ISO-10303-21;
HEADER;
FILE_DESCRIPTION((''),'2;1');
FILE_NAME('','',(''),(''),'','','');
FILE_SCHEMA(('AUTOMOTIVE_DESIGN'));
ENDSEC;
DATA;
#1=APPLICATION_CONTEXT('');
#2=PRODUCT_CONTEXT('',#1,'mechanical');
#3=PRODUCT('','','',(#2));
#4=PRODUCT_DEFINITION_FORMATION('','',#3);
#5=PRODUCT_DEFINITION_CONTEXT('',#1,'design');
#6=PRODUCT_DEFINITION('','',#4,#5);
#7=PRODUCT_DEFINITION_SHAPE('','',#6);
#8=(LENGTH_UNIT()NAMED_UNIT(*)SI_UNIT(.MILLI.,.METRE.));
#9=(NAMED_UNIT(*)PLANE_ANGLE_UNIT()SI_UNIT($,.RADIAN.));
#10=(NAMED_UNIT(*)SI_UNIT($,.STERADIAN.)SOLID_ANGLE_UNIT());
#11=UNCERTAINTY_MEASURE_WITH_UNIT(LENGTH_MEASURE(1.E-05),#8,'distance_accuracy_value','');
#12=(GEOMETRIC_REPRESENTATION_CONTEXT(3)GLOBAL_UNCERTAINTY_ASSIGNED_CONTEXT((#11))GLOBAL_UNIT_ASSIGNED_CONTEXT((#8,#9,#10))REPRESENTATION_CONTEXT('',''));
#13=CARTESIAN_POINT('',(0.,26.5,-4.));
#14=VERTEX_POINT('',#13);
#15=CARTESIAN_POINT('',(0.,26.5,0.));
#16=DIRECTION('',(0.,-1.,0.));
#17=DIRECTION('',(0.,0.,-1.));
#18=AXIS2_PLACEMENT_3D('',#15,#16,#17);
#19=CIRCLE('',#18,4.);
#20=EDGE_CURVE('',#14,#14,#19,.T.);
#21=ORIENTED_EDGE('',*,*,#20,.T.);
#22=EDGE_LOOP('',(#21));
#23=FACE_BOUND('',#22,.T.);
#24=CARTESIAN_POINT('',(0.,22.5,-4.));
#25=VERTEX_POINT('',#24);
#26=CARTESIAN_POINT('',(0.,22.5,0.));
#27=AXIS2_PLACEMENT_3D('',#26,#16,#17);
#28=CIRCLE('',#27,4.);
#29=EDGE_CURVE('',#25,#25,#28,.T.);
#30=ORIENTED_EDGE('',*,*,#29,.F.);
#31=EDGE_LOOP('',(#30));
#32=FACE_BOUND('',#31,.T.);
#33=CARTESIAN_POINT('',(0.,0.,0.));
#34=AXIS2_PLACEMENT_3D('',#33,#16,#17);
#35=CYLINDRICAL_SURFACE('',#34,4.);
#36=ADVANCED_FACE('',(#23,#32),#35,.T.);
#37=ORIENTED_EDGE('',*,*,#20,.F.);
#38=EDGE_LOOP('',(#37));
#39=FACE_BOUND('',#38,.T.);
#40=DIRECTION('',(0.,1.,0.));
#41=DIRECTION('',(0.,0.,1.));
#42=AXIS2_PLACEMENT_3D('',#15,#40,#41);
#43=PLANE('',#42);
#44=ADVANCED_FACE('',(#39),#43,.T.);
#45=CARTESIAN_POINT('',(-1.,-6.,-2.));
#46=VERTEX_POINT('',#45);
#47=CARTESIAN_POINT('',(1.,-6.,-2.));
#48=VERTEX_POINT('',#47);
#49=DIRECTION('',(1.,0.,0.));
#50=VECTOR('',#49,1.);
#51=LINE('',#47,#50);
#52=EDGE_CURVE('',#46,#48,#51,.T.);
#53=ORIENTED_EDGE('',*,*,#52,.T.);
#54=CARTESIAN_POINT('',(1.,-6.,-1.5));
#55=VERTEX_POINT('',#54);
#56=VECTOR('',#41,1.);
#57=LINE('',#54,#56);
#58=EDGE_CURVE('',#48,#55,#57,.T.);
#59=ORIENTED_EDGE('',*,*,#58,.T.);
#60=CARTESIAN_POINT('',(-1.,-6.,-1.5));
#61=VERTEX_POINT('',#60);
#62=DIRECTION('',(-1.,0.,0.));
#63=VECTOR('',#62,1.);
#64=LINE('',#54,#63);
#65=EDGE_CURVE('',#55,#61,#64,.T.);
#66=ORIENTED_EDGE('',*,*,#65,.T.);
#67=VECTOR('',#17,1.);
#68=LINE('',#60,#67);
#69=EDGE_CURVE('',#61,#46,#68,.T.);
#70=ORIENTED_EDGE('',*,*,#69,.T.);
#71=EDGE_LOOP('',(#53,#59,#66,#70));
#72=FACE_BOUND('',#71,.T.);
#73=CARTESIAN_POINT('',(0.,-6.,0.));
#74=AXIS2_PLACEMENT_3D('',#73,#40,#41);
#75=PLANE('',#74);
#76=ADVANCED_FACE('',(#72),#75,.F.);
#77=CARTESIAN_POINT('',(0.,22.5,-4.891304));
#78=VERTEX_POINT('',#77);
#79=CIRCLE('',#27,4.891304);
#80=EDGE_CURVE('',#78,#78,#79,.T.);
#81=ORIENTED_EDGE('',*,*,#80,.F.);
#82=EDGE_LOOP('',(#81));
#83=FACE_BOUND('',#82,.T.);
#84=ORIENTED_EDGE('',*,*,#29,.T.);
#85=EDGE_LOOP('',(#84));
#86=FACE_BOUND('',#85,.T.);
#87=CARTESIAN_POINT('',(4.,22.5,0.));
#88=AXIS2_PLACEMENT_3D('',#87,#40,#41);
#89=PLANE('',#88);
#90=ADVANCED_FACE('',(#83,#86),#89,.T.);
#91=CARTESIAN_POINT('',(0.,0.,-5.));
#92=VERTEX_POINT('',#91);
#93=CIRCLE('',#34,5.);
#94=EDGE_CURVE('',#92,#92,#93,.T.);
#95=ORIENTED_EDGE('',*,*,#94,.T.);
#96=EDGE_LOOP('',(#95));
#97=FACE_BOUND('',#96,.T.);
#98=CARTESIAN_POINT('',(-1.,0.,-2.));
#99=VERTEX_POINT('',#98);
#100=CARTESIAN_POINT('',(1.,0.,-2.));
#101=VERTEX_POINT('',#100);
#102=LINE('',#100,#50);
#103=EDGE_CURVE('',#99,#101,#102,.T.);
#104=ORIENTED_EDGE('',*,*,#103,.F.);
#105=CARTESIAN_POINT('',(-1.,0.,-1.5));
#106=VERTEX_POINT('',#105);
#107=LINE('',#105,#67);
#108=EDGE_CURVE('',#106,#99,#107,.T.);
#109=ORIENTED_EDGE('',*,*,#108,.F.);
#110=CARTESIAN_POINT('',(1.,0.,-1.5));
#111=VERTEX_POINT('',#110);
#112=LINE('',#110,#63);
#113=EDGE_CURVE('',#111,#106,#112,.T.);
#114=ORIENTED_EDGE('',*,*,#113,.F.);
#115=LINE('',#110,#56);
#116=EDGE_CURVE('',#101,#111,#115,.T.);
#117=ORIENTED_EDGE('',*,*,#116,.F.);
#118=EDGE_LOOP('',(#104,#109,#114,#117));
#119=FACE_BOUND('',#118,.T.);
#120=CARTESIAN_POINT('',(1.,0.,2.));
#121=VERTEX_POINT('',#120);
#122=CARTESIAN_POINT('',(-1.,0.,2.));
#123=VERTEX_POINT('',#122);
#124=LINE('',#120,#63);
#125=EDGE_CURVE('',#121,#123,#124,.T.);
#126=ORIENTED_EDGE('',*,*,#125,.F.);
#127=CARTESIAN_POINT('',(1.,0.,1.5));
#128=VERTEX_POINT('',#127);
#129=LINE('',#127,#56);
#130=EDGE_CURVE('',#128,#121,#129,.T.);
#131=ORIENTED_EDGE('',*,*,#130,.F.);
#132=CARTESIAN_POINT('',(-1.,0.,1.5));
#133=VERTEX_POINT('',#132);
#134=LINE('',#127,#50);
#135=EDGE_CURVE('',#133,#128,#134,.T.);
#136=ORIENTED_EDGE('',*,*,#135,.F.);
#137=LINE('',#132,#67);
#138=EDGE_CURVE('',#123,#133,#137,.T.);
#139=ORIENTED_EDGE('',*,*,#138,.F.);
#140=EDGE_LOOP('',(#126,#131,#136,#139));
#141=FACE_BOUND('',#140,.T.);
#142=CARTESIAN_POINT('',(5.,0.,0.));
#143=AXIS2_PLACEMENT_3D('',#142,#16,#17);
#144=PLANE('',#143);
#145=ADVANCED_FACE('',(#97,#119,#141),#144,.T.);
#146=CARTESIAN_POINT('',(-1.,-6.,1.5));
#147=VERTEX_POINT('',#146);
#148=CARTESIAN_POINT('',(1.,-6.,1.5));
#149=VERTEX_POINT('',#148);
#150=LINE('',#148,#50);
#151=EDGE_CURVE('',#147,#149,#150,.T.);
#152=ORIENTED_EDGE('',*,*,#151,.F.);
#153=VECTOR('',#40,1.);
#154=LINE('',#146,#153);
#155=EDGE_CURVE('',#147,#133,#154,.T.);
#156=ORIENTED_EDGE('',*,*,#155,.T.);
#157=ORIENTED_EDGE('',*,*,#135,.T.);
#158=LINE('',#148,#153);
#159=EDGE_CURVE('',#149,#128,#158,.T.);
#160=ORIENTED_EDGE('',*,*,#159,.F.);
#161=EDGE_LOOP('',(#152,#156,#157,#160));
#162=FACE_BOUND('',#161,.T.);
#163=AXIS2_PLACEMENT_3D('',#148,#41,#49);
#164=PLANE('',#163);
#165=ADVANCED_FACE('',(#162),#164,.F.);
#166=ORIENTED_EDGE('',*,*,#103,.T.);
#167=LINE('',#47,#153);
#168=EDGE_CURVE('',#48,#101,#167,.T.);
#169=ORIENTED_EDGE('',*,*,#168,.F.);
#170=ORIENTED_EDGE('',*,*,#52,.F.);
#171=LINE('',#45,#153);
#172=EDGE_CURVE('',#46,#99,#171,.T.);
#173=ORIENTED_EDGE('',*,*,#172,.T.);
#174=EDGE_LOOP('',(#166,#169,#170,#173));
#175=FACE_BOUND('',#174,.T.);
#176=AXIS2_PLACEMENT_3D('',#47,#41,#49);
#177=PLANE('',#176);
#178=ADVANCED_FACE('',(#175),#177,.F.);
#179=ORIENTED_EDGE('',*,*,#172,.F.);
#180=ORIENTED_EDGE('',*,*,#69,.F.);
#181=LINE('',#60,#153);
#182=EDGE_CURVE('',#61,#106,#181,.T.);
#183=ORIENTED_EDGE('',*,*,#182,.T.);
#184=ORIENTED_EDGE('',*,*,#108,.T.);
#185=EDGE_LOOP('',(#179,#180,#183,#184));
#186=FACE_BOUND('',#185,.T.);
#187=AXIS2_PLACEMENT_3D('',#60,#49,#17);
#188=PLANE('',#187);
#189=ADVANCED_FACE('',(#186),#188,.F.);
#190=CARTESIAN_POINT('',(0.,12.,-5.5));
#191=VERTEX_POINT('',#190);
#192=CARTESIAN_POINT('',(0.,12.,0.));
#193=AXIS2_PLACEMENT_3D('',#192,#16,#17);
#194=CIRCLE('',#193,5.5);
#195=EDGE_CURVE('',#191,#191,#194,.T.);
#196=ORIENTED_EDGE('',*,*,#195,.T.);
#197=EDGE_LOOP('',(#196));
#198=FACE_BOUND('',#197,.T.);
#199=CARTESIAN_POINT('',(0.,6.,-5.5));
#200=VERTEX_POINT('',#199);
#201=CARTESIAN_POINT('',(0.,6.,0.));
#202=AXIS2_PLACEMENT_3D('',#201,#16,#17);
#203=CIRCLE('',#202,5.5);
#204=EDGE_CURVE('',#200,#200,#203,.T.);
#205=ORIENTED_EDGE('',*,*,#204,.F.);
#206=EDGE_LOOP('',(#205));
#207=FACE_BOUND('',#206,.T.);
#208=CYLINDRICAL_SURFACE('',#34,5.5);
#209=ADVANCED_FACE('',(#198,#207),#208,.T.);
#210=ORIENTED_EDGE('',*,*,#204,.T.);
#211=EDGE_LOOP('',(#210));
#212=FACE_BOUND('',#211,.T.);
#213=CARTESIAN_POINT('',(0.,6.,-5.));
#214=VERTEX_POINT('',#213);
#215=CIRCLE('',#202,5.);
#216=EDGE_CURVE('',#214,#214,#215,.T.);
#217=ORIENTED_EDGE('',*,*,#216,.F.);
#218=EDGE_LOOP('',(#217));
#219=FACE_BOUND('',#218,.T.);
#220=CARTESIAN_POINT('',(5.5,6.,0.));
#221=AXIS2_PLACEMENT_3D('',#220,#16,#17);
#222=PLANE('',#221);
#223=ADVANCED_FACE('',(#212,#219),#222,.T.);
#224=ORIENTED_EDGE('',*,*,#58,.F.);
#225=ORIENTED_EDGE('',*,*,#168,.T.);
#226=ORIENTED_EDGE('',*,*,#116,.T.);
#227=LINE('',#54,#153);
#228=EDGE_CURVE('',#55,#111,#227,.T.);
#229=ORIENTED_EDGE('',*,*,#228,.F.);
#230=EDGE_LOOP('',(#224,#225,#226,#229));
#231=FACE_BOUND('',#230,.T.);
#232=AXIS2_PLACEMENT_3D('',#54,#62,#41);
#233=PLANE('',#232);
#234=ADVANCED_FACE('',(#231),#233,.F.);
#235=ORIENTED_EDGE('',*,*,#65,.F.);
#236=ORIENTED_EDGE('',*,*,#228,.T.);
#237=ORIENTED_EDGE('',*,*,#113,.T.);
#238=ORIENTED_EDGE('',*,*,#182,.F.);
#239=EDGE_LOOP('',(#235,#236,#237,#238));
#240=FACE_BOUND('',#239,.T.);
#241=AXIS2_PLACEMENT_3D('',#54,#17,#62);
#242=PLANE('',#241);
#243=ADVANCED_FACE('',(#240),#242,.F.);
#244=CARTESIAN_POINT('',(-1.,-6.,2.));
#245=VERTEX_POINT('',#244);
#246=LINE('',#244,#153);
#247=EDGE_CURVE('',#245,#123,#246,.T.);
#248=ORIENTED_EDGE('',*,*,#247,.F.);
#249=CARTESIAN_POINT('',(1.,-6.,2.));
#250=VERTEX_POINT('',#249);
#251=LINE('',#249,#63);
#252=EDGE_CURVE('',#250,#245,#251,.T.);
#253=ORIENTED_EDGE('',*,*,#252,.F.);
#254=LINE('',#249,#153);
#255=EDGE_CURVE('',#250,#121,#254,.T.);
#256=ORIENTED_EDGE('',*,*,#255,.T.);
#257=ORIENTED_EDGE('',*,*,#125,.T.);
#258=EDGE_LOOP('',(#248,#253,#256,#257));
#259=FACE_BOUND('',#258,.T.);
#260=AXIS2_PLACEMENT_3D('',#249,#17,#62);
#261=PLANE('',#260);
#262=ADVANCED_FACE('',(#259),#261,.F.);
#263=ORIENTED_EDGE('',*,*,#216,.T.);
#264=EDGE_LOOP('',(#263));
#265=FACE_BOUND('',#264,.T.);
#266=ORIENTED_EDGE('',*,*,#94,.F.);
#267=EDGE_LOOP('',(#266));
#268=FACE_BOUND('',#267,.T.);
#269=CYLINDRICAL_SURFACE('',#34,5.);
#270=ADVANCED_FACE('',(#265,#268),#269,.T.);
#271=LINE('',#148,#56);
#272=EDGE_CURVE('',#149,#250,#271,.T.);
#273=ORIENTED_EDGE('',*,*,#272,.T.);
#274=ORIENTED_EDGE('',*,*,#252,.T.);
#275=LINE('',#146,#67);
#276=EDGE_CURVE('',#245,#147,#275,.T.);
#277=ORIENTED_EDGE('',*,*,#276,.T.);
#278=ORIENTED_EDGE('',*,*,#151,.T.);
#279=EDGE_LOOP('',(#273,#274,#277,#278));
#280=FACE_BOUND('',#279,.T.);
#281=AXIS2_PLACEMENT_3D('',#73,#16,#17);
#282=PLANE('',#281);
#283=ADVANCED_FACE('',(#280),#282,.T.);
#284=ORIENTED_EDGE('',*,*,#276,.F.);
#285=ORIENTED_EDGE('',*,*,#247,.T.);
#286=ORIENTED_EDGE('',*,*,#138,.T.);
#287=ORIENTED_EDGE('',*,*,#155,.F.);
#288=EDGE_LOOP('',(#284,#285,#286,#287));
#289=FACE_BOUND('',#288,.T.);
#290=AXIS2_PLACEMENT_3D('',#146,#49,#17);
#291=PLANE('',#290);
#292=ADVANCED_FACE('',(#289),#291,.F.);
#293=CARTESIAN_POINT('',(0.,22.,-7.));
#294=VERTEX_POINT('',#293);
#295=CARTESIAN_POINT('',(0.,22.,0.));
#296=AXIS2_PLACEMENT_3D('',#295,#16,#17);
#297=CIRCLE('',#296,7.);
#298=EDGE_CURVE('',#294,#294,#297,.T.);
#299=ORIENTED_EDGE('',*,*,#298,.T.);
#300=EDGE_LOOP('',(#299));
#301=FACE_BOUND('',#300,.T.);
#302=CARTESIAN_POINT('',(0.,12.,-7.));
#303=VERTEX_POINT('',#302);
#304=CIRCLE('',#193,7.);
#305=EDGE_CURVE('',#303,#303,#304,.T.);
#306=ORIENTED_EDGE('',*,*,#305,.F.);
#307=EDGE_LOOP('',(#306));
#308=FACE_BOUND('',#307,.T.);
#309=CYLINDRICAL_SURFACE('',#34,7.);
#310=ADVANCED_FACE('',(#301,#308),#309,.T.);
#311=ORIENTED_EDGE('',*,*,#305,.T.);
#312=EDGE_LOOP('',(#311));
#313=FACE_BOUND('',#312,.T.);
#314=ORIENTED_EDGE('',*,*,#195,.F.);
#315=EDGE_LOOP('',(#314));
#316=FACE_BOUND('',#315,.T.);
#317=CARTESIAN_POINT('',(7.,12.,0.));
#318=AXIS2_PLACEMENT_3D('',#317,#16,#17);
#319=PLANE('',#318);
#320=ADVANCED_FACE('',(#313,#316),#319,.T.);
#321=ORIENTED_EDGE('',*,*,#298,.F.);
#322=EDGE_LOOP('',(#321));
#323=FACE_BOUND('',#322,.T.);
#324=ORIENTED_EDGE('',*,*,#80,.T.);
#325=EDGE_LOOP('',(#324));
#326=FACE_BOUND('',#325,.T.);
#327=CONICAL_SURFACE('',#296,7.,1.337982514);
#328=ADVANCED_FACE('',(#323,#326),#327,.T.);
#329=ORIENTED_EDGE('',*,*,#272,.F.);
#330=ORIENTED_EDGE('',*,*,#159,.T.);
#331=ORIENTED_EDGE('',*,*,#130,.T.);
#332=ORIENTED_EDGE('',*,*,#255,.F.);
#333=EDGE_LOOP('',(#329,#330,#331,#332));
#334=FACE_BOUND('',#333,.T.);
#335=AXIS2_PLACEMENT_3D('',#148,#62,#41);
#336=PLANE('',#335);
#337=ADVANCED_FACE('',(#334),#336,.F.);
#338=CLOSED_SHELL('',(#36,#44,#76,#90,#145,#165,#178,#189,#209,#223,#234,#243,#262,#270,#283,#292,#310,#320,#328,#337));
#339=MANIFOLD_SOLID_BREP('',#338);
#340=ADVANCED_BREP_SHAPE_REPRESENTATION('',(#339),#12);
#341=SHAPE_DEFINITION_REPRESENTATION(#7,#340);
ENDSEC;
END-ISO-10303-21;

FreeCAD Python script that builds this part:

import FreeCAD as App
import Part
import Sketcher

V = App.Vector
Q = App.Units.Quantity

doc = App.newDocument("Part")
params = doc.addObject("Spreadsheet::Sheet", "Params")
for row, (alias, value) in enumerate([
    ("sketch1_width", "4 mm"),
    ("sketch1_width2", "5 mm"),
    ("sketch1_height", "6 mm"),
    ("sketch1_height2", "10 mm"),
    ("sketch1_width3", "0.5 mm"),
    ("revolution_angle", "360 deg"),
    ("sketch2_width", "2 mm"),
    ("sketch2_height", "0.5 mm"),
    ("pad1_length", "6 mm"),
], start=1):
    params.set(f"A{row}", alias)
    params.set(f"B{row}", "=" + value)
    params.setAlias(f"B{row}", alias)

body = doc.addObject("PartDesign::Body", "Body")

sketch1 = body.newObject("Sketcher::SketchObject", "Sketch")
sketch1.AttachmentSupport = (doc.getObject("XY_Plane"), [""])
sketch1.MapMode = "FlatFace"
sketch1.addGeometry([
    Part.LineSegment(V(4, 26.5, 0), V(0, 26.5, 0)),
    Part.LineSegment(V(0, 26.5, 0), V(0, 0, 0)),
    Part.LineSegment(V(0, 0, 0), V(5, 0, 0)),
    Part.LineSegment(V(5, 0, 0), V(5, 6, 0)),
    Part.LineSegment(V(5, 6, 0), V(5.5, 6, 0)),
    Part.LineSegment(V(5.5, 6, 0), V(5.5, 12, 0)),
    Part.LineSegment(V(5.5, 12, 0), V(7, 12, 0)),
    Part.LineSegment(V(7, 12, 0), V(7, 22, 0)),
    Part.LineSegment(V(7, 22, 0), V(4.891304, 22.5, 0)),
    Part.LineSegment(V(4.891304, 22.5, 0), V(4, 22.5, 0)),
    Part.LineSegment(V(4, 22.5, 0), V(4, 26.5, 0)),
], False)
sketch1.addConstraint([
    Sketcher.Constraint("Coincident", 0, 2, 1, 1),
    Sketcher.Constraint("Coincident", 1, 2, 2, 1),
    Sketcher.Constraint("Coincident", 2, 2, 3, 1),
    Sketcher.Constraint("Coincident", 3, 2, 4, 1),
    Sketcher.Constraint("Coincident", 4, 2, 5, 1),
    Sketcher.Constraint("Coincident", 5, 2, 6, 1),
    Sketcher.Constraint("Coincident", 6, 2, 7, 1),
    Sketcher.Constraint("Coincident", 7, 2, 8, 1),
    Sketcher.Constraint("Coincident", 8, 2, 9, 1),
    Sketcher.Constraint("Coincident", 9, 2, 10, 1),
    Sketcher.Constraint("Coincident", 10, 2, 0, 1),
    Sketcher.Constraint("Horizontal", 0),
    Sketcher.Constraint("Vertical", 1),
    Sketcher.Constraint("Horizontal", 2),
    Sketcher.Constraint("Vertical", 3),
    Sketcher.Constraint("Horizontal", 4),
    Sketcher.Constraint("Vertical", 5),
    Sketcher.Constraint("Horizontal", 6),
    Sketcher.Constraint("Vertical", 7),
    Sketcher.Constraint("Horizontal", 9),
    Sketcher.Constraint("Vertical", 10),
    Sketcher.Constraint("Coincident", 1, 2, -1, 1),
    Sketcher.Constraint("Equal", 3, 5),
    Sketcher.Constraint("Equal", 0, 10),
    Sketcher.Constraint("DistanceX", 0, 2, 0, 1, Q("4 mm")),
    Sketcher.Constraint("DistanceX", 2, 1, 2, 2, Q("5 mm")),
    Sketcher.Constraint("DistanceY", 3, 1, 3, 2, Q("6 mm")),
    Sketcher.Constraint("DistanceY", 7, 1, 7, 2, Q("10 mm")),
    Sketcher.Constraint("DistanceX", 4, 1, 4, 2, Q("0.5 mm")),
    Sketcher.Constraint("DistanceX", 6, 1, 6, 2, Q("1.5 mm")),
    Sketcher.Constraint("DistanceY", 1, 2, 1, 1, Q("26.5 mm")),
    Sketcher.Constraint("DistanceX", 9, 2, 9, 1, Q("0.891304 mm")),
])
sketch1.setExpression("Constraints[24]", "Params.sketch1_width")
sketch1.setExpression("Constraints[25]", "Params.sketch1_width2")
sketch1.setExpression("Constraints[26]", "Params.sketch1_height")
sketch1.setExpression("Constraints[27]", "Params.sketch1_height2")
sketch1.setExpression("Constraints[28]", "Params.sketch1_width3")
revolution = body.newObject("PartDesign::Revolution", "Revolution")
revolution.Profile = sketch1
revolution.ReferenceAxis = (sketch1, ["V_Axis"])
revolution.setExpression("Angle", "Params.revolution_angle")

sketch2 = body.newObject("Sketcher::SketchObject", "Sketch001")
sketch2.AttachmentSupport = (doc.getObject("XZ_Plane"), [""])
sketch2.MapMode = "FlatFace"
sketch2.addGeometry([
    Part.LineSegment(V(-1, -1.5, 0), V(-1, -2, 0)),
    Part.LineSegment(V(-1, -2, 0), V(1, -2, 0)),
    Part.LineSegment(V(1, -2, 0), V(1, -1.5, 0)),
    Part.LineSegment(V(1, -1.5, 0), V(-1, -1.5, 0)),
    Part.LineSegment(V(-1, 2, 0), V(-1, 1.5, 0)),
    Part.LineSegment(V(-1, 1.5, 0), V(1, 1.5, 0)),
    Part.LineSegment(V(1, 1.5, 0), V(1, 2, 0)),
    Part.LineSegment(V(1, 2, 0), V(-1, 2, 0)),
], False)
sketch2.addConstraint([
    Sketcher.Constraint("Coincident", 0, 2, 1, 1),
    Sketcher.Constraint("Coincident", 1, 2, 2, 1),
    Sketcher.Constraint("Coincident", 2, 2, 3, 1),
    Sketcher.Constraint("Coincident", 3, 2, 0, 1),
    Sketcher.Constraint("Coincident", 4, 2, 5, 1),
    Sketcher.Constraint("Coincident", 5, 2, 6, 1),
    Sketcher.Constraint("Coincident", 6, 2, 7, 1),
    Sketcher.Constraint("Coincident", 7, 2, 4, 1),
    Sketcher.Constraint("Vertical", 0),
    Sketcher.Constraint("Horizontal", 1),
    Sketcher.Constraint("Vertical", 2),
    Sketcher.Constraint("Horizontal", 3),
    Sketcher.Constraint("Vertical", 4),
    Sketcher.Constraint("Horizontal", 5),
    Sketcher.Constraint("Vertical", 6),
    Sketcher.Constraint("Horizontal", 7),
    Sketcher.Constraint("Symmetric", 2, 2, 4, 2, -1, 1),
    Sketcher.Constraint("Symmetric", 0, 2, 6, 2, -1, 1),
    Sketcher.Constraint("Vertical", 3, 2, 4, 2),
    Sketcher.Constraint("DistanceX", 1, 1, 1, 2, Q("2 mm")),
    Sketcher.Constraint("DistanceY", 0, 2, 0, 1, Q("0.5 mm")),
    Sketcher.Constraint("DistanceY", 0, 2, -1, 1, Q("2 mm")),
])
sketch2.setExpression("Constraints[19]", "Params.sketch2_width")
sketch2.setExpression("Constraints[20]", "Params.sketch2_height")
pad1 = body.newObject("PartDesign::Pad", "Pad")
pad1.Profile = sketch2
pad1.setExpression("Length", "Params.pad1_length")

doc.recompute()
